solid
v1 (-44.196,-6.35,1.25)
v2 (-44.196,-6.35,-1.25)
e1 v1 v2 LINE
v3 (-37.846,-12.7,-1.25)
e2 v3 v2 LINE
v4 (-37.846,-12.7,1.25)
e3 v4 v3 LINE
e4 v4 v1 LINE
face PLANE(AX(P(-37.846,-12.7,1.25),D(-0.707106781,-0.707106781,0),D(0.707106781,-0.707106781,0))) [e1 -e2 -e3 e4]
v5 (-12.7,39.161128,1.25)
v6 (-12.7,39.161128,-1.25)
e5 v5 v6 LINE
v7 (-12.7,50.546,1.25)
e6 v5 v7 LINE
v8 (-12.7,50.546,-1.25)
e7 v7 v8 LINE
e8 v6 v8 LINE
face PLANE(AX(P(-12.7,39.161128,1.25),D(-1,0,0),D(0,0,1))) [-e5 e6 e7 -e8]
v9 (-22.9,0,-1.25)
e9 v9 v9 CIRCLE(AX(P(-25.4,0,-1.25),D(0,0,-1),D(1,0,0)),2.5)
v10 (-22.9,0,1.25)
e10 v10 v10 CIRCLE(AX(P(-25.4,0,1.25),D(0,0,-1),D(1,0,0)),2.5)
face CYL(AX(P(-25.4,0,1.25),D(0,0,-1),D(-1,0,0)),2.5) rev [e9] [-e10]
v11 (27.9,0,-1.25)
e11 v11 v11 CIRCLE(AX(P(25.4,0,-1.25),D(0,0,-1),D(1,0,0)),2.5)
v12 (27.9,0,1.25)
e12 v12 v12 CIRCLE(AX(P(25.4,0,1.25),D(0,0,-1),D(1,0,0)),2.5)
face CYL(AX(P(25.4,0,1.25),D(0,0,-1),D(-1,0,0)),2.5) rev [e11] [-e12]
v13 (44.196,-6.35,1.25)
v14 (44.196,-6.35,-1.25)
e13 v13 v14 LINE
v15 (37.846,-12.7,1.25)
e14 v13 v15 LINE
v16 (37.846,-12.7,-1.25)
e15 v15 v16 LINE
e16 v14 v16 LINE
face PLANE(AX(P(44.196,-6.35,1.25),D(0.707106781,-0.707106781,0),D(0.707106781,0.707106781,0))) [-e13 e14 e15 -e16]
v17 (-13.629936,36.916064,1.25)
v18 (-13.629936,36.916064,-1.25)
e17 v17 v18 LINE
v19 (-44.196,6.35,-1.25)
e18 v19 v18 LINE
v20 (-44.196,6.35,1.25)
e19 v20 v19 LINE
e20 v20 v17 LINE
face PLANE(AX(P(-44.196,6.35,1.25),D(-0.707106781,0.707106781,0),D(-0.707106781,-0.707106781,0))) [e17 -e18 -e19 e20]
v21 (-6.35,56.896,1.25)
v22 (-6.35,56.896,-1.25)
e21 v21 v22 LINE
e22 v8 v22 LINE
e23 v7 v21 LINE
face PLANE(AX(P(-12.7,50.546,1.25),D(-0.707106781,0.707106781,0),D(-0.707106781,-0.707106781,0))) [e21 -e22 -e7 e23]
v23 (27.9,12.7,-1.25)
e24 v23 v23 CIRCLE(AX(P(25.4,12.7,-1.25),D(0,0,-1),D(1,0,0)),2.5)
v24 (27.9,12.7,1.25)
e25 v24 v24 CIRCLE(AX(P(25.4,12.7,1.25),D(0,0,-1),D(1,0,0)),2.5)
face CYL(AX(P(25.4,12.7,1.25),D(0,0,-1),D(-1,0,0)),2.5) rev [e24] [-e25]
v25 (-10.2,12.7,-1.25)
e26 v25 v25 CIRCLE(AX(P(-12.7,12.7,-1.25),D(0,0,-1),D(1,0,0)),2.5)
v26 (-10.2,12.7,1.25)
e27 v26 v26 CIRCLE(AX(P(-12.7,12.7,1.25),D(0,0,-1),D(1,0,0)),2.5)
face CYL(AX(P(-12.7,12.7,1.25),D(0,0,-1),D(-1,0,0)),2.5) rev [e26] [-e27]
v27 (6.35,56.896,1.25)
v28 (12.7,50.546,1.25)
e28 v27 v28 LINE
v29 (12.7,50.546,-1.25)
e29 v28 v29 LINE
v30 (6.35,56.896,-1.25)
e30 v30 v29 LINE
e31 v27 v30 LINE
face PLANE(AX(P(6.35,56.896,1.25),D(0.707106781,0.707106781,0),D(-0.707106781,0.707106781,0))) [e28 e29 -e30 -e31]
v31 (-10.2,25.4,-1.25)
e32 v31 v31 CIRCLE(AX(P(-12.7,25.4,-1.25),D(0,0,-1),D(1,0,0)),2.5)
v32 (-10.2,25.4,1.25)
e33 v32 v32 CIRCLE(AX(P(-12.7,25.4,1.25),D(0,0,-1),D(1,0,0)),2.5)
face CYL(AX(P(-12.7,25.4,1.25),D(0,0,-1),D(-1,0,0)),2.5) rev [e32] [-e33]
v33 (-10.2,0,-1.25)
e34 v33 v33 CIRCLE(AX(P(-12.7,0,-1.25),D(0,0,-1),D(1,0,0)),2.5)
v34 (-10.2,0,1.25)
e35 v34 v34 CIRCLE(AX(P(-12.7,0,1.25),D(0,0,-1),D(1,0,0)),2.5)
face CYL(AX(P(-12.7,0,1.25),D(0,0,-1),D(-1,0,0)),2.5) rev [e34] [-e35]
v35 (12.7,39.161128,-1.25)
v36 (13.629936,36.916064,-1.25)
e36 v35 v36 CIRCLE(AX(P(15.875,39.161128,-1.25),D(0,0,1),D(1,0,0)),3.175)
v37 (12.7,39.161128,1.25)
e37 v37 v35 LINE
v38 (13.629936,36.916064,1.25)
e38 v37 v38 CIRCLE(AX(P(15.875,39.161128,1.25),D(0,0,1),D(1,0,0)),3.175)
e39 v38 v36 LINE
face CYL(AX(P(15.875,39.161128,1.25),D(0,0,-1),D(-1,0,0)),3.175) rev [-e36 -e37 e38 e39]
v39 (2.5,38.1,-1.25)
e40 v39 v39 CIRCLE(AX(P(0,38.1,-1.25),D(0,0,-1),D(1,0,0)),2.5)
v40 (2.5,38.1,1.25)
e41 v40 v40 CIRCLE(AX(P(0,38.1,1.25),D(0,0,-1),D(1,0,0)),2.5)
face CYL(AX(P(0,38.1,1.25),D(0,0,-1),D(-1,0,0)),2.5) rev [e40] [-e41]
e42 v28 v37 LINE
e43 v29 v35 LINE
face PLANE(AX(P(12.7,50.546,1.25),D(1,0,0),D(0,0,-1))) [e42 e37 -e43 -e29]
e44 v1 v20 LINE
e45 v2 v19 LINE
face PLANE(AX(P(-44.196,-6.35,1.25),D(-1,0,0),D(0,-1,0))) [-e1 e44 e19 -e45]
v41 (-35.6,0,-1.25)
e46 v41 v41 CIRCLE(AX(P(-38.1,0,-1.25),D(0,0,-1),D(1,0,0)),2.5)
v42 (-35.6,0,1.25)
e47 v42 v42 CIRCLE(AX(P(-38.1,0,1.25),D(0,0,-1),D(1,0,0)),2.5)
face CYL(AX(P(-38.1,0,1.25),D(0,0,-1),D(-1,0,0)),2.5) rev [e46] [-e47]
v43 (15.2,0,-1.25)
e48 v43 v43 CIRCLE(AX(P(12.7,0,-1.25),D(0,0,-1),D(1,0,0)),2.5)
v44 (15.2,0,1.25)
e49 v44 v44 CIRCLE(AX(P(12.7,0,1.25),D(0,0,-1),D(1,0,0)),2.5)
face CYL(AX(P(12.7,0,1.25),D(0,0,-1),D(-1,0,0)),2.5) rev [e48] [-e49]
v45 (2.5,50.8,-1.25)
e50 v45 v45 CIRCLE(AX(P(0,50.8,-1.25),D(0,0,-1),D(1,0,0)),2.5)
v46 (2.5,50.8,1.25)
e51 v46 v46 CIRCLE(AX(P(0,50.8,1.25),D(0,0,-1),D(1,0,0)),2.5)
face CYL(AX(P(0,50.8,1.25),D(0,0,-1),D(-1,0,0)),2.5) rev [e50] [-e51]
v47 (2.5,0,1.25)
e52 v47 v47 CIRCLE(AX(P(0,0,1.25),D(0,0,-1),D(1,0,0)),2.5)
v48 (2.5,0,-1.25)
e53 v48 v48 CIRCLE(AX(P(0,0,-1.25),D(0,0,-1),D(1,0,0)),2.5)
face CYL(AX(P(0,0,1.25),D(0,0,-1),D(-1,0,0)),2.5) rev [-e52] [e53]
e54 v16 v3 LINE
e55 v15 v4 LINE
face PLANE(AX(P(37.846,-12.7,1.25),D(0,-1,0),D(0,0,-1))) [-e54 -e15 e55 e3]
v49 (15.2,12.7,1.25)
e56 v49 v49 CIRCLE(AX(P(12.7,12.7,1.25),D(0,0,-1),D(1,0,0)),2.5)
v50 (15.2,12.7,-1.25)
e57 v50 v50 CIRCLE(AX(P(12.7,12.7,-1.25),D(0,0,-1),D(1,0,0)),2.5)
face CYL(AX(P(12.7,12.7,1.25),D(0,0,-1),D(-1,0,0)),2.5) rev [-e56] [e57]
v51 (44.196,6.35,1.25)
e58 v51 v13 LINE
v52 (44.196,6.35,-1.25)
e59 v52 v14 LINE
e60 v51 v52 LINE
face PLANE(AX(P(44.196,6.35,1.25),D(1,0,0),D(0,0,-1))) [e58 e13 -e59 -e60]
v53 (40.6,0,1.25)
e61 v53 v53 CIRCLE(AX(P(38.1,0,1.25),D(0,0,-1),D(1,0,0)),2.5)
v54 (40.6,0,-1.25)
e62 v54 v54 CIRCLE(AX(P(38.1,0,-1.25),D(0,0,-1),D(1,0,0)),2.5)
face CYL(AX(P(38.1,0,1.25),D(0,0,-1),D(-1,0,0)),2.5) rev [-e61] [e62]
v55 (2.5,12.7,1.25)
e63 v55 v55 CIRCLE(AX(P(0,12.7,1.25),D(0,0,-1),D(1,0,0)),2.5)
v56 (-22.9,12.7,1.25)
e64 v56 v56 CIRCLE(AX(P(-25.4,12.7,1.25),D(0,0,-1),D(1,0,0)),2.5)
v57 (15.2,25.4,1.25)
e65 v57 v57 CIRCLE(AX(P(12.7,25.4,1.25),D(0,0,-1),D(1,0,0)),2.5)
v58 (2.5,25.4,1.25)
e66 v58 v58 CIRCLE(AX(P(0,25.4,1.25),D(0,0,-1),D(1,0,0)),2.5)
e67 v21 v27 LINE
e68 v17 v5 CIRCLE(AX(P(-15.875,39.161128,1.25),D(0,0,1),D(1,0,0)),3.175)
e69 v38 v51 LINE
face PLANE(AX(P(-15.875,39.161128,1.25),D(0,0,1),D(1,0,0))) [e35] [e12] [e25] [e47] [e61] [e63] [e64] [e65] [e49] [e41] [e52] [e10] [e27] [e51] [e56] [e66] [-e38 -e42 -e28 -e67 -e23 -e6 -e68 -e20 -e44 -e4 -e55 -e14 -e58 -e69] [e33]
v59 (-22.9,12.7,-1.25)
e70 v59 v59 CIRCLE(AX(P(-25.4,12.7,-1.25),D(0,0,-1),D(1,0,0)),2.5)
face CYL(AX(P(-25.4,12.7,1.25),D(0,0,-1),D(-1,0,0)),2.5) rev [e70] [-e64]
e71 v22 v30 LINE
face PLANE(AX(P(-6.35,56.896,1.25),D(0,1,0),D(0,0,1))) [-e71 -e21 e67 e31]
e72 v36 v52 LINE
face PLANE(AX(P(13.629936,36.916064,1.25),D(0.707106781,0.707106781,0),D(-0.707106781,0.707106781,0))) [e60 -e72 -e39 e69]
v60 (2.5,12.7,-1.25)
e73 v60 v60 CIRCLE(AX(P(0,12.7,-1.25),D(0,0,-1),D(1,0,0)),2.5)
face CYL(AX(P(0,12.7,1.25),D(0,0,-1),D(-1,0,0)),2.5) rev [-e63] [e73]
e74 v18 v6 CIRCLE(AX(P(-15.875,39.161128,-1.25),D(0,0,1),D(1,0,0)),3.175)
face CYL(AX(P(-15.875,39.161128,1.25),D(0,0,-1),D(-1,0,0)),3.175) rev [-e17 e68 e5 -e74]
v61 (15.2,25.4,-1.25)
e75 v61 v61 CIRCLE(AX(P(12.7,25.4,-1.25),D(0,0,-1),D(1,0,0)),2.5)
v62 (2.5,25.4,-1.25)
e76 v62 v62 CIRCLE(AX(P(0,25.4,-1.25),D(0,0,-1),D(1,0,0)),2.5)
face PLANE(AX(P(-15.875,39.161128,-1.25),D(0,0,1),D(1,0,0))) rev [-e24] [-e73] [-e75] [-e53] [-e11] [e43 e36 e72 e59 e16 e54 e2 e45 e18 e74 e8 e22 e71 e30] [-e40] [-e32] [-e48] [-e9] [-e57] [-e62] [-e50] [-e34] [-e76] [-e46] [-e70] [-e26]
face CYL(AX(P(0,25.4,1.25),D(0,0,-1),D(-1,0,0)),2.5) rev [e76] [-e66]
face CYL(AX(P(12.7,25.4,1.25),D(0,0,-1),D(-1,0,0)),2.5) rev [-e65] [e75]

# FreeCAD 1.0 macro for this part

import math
import FreeCAD as App
import Part
import Sketcher
Q = App.Units.Quantity

doc = App.newDocument("Part")
body = doc.addObject("PartDesign::Body", "Body")

# Sketch on XY plane
sketch1 = body.newObject("Sketcher::SketchObject", "Sketch")
sketch1.AttachmentSupport = (doc.getObject("XY_Plane"), [""])
sketch1.MapMode = "FlatFace"
sketch1.AttachmentOffset = App.Placement(App.Vector(0, 0, -1.25), App.Rotation())
sketch1.addGeometry([
    Part.LineSegment(App.Vector(-44.2, 6.3, 0), App.Vector(-13.6, 36.9, 0)),  # 0
    Part.ArcOfCircle(Part.Circle(App.Vector(-15.9, 39.2, 0), App.Vector(0, 0, 1), 3.2), math.radians(-45), math.radians(0)),  # 1
    Part.LineSegment(App.Vector(-12.7, 39.2, 0), App.Vector(-12.7, 50.5, 0)),  # 2
    Part.LineSegment(App.Vector(-12.7, 50.5, 0), App.Vector(-6.3, 56.9, 0)),  # 3
    Part.LineSegment(App.Vector(-6.3, 56.9, 0), App.Vector(6.3, 56.9, 0)),  # 4
    Part.LineSegment(App.Vector(6.3, 56.9, 0), App.Vector(12.7, 50.5, 0)),  # 5
    Part.LineSegment(App.Vector(12.7, 50.5, 0), App.Vector(12.7, 39.2, 0)),  # 6
    Part.ArcOfCircle(Part.Circle(App.Vector(15.9, 39.2, 0), App.Vector(0, 0, 1), 3.2), math.radians(180), math.radians(225)),  # 7
    Part.LineSegment(App.Vector(13.6, 36.9, 0), App.Vector(44.2, 6.3, 0)),  # 8
    Part.LineSegment(App.Vector(44.2, 6.3, 0), App.Vector(44.2, -6.3, 0)),  # 9
    Part.LineSegment(App.Vector(44.2, -6.3, 0), App.Vector(37.8, -12.7, 0)),  # 10
    Part.LineSegment(App.Vector(37.8, -12.7, 0), App.Vector(-37.8, -12.7, 0)),  # 11
    Part.LineSegment(App.Vector(-37.8, -12.7, 0), App.Vector(-44.2, -6.3, 0)),  # 12
    Part.LineSegment(App.Vector(-44.2, -6.3, 0), App.Vector(-44.2, 6.3, 0)),  # 13
    Part.Circle(App.Vector(38.1, 0, 0), App.Vector(0, 0, 1), 2.5),  # 14
    Part.Circle(App.Vector(25.4, 0, 0), App.Vector(0, 0, 1), 2.5),  # 15
    Part.Circle(App.Vector(12.7, 0, 0), App.Vector(0, 0, 1), 2.5),  # 16
    Part.Circle(App.Vector(0, 0, 0), App.Vector(0, 0, 1), 2.5),  # 17
    Part.Circle(App.Vector(25.4, 12.7, 0), App.Vector(0, 0, 1), 2.5),  # 18
    Part.Circle(App.Vector(12.7, 12.7, 0), App.Vector(0, 0, 1), 2.5),  # 19
    Part.Circle(App.Vector(0, 12.7, 0), App.Vector(0, 0, 1), 2.5),  # 20
    Part.Circle(App.Vector(-12.7, 0, 0), App.Vector(0, 0, 1), 2.5),  # 21
    Part.Circle(App.Vector(-25.4, 0, 0), App.Vector(0, 0, 1), 2.5),  # 22
    Part.Circle(App.Vector(-38.1, 0, 0), App.Vector(0, 0, 1), 2.5),  # 23
    Part.Circle(App.Vector(-12.7, 12.7, 0), App.Vector(0, 0, 1), 2.5),  # 24
    Part.Circle(App.Vector(-25.4, 12.7, 0), App.Vector(0, 0, 1), 2.5),  # 25
    Part.Circle(App.Vector(12.7, 25.4, 0), App.Vector(0, 0, 1), 2.5),  # 26
    Part.Circle(App.Vector(0, 25.4, 0), App.Vector(0, 0, 1), 2.5),  # 27
    Part.Circle(App.Vector(0, 38.1, 0), App.Vector(0, 0, 1), 2.5),  # 28
    Part.Circle(App.Vector(0, 50.8, 0), App.Vector(0, 0, 1), 2.5),  # 29
    Part.Circle(App.Vector(-12.7, 25.4, 0), App.Vector(0, 0, 1), 2.5),  # 30
], False)
sketch1.addConstraint([
    Sketcher.Constraint("Tangent", 0, 2, 1, 1),
    Sketcher.Constraint("Tangent", 1, 2, 2, 1),
    Sketcher.Constraint("Coincident", 2, 2, 3, 1),
    Sketcher.Constraint("Coincident", 3, 2, 4, 1),
    Sketcher.Constraint("Coincident", 4, 2, 5, 1),
    Sketcher.Constraint("Coincident", 5, 2, 6, 1),
    Sketcher.Constraint("Tangent", 6, 2, 7, 1),
    Sketcher.Constraint("Tangent", 7, 2, 8, 1),
    Sketcher.Constraint("Coincident", 8, 2, 9, 1),
    Sketcher.Constraint("Coincident", 9, 2, 10, 1),
    Sketcher.Constraint("Coincident", 10, 2, 11, 1),
    Sketcher.Constraint("Coincident", 11, 2, 12, 1),
    Sketcher.Constraint("Coincident", 12, 2, 13, 1),
    Sketcher.Constraint("Coincident", 13, 2, 0, 1),
    Sketcher.Constraint("Vertical", 2),
    Sketcher.Constraint("Horizontal", 4),
    Sketcher.Constraint("Vertical", 6),
    Sketcher.Constraint("Vertical", 9),
    Sketcher.Constraint("Horizontal", 11),
    Sketcher.Constraint("Vertical", 13),
    Sketcher.Constraint("Coincident", 17, 3, -1, 1),
    Sketcher.Constraint("Equal", 1, 7),
    Sketcher.Constraint("Equal", 14, 15),
    Sketcher.Constraint("Equal", 15, 16),
    Sketcher.Constraint("Equal", 16, 17),
    Sketcher.Constraint("Equal", 17, 18),
    Sketcher.Constraint("Equal", 18, 19),
    Sketcher.Constraint("Equal", 19, 20),
    Sketcher.Constraint("Equal", 20, 21),
    Sketcher.Constraint("Equal", 21, 22),
    Sketcher.Constraint("Equal", 22, 23),
    Sketcher.Constraint("Equal", 23, 24),
    Sketcher.Constraint("Equal", 24, 25),
    Sketcher.Constraint("Equal", 25, 26),
    Sketcher.Constraint("Equal", 26, 27),
    Sketcher.Constraint("Equal", 27, 28),
    Sketcher.Constraint("Equal", 28, 29),
    Sketcher.Constraint("Equal", 29, 30),
    Sketcher.Constraint("Symmetric", 16, 3, 21, 3, -1, 1),
    Sketcher.Constraint("Symmetric", 15, 3, 22, 3, -1, 1),
    Sketcher.Constraint("Symmetric", 14, 3, 23, 3, -1, 1),
    Sketcher.Constraint("Symmetric", 8, 2, 12, 2, -1, 1),
    Sketcher.Constraint("Symmetric", 1, 3, 7, 3, -2),
    Sketcher.Constraint("Symmetric", 19, 3, 24, 3, -2),
    Sketcher.Constraint("Symmetric", 18, 3, 25, 3, -2),
    Sketcher.Constraint("Symmetric", 26, 3, 30, 3, -2),
    Sketcher.Constraint("PointOnObject", 14, 3, -1),
    Sketcher.Constraint("PointOnObject", 15, 3, -1),
    Sketcher.Constraint("PointOnObject", 16, 3, -1),
    Sketcher.Constraint("PointOnObject", 20, 3, -2),
    Sketcher.Constraint("PointOnObject", 27, 3, -2),
    Sketcher.Constraint("PointOnObject", 28, 3, -2),
    Sketcher.Constraint("PointOnObject", 29, 3, -2),
    Sketcher.Constraint("Parallel", 0, 3),
    Sketcher.Constraint("Perpendicular", 3, 5),
    Sketcher.Constraint("Parallel", 5, 8),
    Sketcher.Constraint("Perpendicular", 8, 10),
    Sketcher.Constraint("Perpendicular", 10, 12),
    Sketcher.Constraint("Horizontal", 18, 3, 19, 3),
    Sketcher.Constraint("Horizontal", 19, 3, 20, 3),
    Sketcher.Constraint("Horizontal", 26, 3, 27, 3),
    Sketcher.Constraint("Horizontal", 2, 2, 5, 2),
    Sketcher.Constraint("Horizontal", 0, 2, 7, 2),
    Sketcher.Constraint("Horizontal", 9, 2, 12, 2),
    Sketcher.Constraint("Vertical", 15, 3, 18, 3),
    Sketcher.Constraint("Vertical", 16, 3, 19, 3),
    Sketcher.Constraint("Vertical", 19, 3, 26, 3),
    Sketcher.Constraint("Vertical", 30, 3, 1, 2),
    Sketcher.Constraint("Equal", 4, 9),
    Sketcher.Constraint("Equal", 5, 10),
    Sketcher.Constraint("DistanceX", 4, 1, 4, 2, Q("0.5 in")),
    Sketcher.Constraint("DistanceX", -1, 1, 15, 3, Q("1 in")),
    Sketcher.Constraint("DistanceY", -1, 1, 26, 3, Q("1 in")),
    Sketcher.Constraint("DistanceY", -1, 1, 29, 3, Q("2 in")),
    Sketcher.Constraint("Radius", 1, Q("0.125 in")),
    Sketcher.Constraint("DistanceX", 16, 3, 14, 3, Q("1 in")),
    Sketcher.Constraint("DistanceX", 21, 3, 16, 3, Q("1 in")),
    Sketcher.Constraint("DistanceY", 20, 3, 28, 3, Q("1 in")),
    Sketcher.Constraint("DistanceY", 11, 2, 25, 3, Q("1 in")),
    Sketcher.Constraint("DistanceX", 11, 2, 11, 1, Q("2.98 in")),
    Sketcher.Constraint("Diameter", 14, 5.0),
    Sketcher.Constraint("DistanceY", -1, 1, 2, 2, Q("1.99 in")),
])
pad1 = body.newObject("PartDesign::Pad", "Pad")
pad1.Profile = sketch1
pad1.Length = 2.5

doc.recompute()
